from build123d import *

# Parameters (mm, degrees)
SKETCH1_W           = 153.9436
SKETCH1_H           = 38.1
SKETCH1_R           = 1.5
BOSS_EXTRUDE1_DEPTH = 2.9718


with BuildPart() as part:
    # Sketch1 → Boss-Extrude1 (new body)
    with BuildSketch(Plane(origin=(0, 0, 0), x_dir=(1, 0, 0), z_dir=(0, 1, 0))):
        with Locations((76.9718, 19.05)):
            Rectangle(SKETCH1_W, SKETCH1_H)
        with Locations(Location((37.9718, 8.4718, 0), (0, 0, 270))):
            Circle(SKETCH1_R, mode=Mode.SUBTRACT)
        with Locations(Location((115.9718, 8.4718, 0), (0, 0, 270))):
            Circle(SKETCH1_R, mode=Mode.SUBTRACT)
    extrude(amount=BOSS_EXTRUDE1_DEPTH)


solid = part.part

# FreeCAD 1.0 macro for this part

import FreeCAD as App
import Part
import Sketcher

V = App.Vector
Q = App.Units.Quantity

doc = App.newDocument("Part")
body = doc.addObject("PartDesign::Body", "Body")

sketch1 = body.newObject("Sketcher::SketchObject", "Sketch")
sketch1.AttachmentSupport = (doc.getObject("XZ_Plane"), [""])
sketch1.MapMode = "FlatFace"
sketch1.addGeometry(Part.LineSegment(V(0, -38.1, 0), V(0, 0, 0)), False)
sketch1.addGeometry(Part.LineSegment(V(0, 0, 0), V(153.9436, 0, 0)), False)
sketch1.addGeometry(Part.LineSegment(V(153.9436, 0, 0), V(153.9436, -38.1, 0)), False)
sketch1.addGeometry(Part.LineSegment(V(153.9436, -38.1, 0), V(0, -38.1, 0)), False)
sketch1.addGeometry(Part.Circle(V(37.9718, -8.4718, 0), V(0, 0, 1), 1.5), False)
sketch1.addGeometry(Part.Circle(V(115.9718, -8.4718, 0), V(0, 0, 1), 1.5), False)
sketch1.addConstraint(Sketcher.Constraint("Coincident", 0, 2, 1, 1))
sketch1.addConstraint(Sketcher.Constraint("Coincident", 1, 2, 2, 1))
sketch1.addConstraint(Sketcher.Constraint("Coincident", 2, 2, 3, 1))
sketch1.addConstraint(Sketcher.Constraint("Coincident", 3, 2, 0, 1))
sketch1.addConstraint(Sketcher.Constraint("Vertical", 0))
sketch1.addConstraint(Sketcher.Constraint("Horizontal", 1))
sketch1.addConstraint(Sketcher.Constraint("Vertical", 2))
sketch1.addConstraint(Sketcher.Constraint("Horizontal", 3))
sketch1.addConstraint(Sketcher.Constraint("Coincident", 0, 2, -1, 1))
sketch1.addConstraint(Sketcher.Constraint("Equal", 4, 5))
sketch1.addConstraint(Sketcher.Constraint("Horizontal", 4, 3, 5, 3))
sketch1.addConstraint(Sketcher.Constraint("DistanceY", 0, 1, 0, 2, Q("1.5 in")))
sketch1.addConstraint(Sketcher.Constraint("Diameter", 4, Q("3 mm")))
sketch1.addConstraint(Sketcher.Constraint("DistanceX", 1, 1, 1, 2, Q("153.9436 mm")))
sketch1.addConstraint(Sketcher.Constraint("DistanceX", -1, 1, 4, 3, Q("37.9718 mm")))
sketch1.addConstraint(Sketcher.Constraint("DistanceY", 4, 3, -1, 1, Q("8.4718 mm")))
sketch1.addConstraint(Sketcher.Constraint("DistanceX", -1, 1, 5, 3, Q("115.9718 mm")))
pad1 = body.newObject("PartDesign::Pad", "Pad")
pad1.Profile = sketch1
pad1.Length = Q("0.117 in")
pad1.Reversed = True

doc.recompute()
